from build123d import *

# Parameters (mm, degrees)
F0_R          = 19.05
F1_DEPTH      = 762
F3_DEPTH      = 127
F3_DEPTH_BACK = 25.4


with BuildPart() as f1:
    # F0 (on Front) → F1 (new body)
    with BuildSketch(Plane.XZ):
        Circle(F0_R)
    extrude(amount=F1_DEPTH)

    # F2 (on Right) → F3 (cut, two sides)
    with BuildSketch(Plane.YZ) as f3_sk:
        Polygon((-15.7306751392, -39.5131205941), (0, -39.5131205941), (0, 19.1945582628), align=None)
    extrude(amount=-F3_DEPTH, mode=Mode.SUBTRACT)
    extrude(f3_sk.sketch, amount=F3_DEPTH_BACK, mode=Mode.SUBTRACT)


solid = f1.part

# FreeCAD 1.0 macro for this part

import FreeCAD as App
import Part
import Sketcher
from FreeCAD import Vector
Q = App.Units.Quantity


def add_polygon(sketch, points):
    """Adds a closed chain of lines whose ends are joined by coincident constraints."""
    first, n = sketch.GeometryCount, len(points)
    for a, b in zip(points, points[1:] + points[:1]):
        sketch.addGeometry(Part.LineSegment(App.Vector(*a, 0), App.Vector(*b, 0)), False)
    for i in range(n):
        sketch.addConstraint(Sketcher.Constraint("Coincident", first + i, 2, first + (i + 1) % n, 1))

doc = App.newDocument("Part")
params = doc.addObject("Spreadsheet::Sheet", "Params")
for row, (alias, value) in enumerate([
    ("sketch1_diameter", "1.5 in"),
    ("pad1_length", "30 in"),
], start=1):
    params.set(f"A{row}", alias)
    params.set(f"B{row}", "=" + value)
    params.setAlias(f"B{row}", alias)

body = doc.addObject("PartDesign::Body", "Body")

sketch1 = doc.addObject("Sketcher::SketchObject", "Sketch")
body.addObject(sketch1)
sketch1.AttachmentSupport = (doc.XZ_Plane, [""])
sketch1.MapMode = "FlatFace"
sketch1.addGeometry(Part.Circle(Vector(0, 0, 0), Vector(0, 0, 1), 19.05), False)
sketch1.addConstraint([
    Sketcher.Constraint("Coincident", 0, 3, -1, 1),
    Sketcher.Constraint("Diameter", 0, Q("1.5 in")),
])
sketch1.setExpression("Constraints[1]", "Params.sketch1_diameter")
pad1 = doc.addObject("PartDesign::Pad", "Pad")
body.addObject(pad1)
pad1.Profile = sketch1
pad1.setExpression("Length", "Params.pad1_length")

sketch2 = doc.addObject("Sketcher::SketchObject", "Sketch001")
body.addObject(sketch2)
sketch2.AttachmentSupport = (doc.YZ_Plane, [""])
sketch2.MapMode = "FlatFace"
add_polygon(sketch2, [(-15.730675, -39.513121), (0, -39.513121), (0, 19.194558)])
sketch2.addConstraint([
    Sketcher.Constraint("Horizontal", 0),
    Sketcher.Constraint("Vertical", 1),
    Sketcher.Constraint("PointOnObject", 0, 2, -2),
    Sketcher.Constraint("Angle", 2, Q("-105 deg")),
    Sketcher.Constraint("DistanceY", 1, 1, 1, 2, 58.707679),
    Sketcher.Constraint("DistanceY", 0, 2, -1, 1, 39.513121),
])
pocket1 = doc.addObject("PartDesign::Pocket", "Pocket")
body.addObject(pocket1)
pocket1.Profile = sketch2
pocket1.Type = "ThroughAll"
pocket1.Midplane = True

doc.recompute()
